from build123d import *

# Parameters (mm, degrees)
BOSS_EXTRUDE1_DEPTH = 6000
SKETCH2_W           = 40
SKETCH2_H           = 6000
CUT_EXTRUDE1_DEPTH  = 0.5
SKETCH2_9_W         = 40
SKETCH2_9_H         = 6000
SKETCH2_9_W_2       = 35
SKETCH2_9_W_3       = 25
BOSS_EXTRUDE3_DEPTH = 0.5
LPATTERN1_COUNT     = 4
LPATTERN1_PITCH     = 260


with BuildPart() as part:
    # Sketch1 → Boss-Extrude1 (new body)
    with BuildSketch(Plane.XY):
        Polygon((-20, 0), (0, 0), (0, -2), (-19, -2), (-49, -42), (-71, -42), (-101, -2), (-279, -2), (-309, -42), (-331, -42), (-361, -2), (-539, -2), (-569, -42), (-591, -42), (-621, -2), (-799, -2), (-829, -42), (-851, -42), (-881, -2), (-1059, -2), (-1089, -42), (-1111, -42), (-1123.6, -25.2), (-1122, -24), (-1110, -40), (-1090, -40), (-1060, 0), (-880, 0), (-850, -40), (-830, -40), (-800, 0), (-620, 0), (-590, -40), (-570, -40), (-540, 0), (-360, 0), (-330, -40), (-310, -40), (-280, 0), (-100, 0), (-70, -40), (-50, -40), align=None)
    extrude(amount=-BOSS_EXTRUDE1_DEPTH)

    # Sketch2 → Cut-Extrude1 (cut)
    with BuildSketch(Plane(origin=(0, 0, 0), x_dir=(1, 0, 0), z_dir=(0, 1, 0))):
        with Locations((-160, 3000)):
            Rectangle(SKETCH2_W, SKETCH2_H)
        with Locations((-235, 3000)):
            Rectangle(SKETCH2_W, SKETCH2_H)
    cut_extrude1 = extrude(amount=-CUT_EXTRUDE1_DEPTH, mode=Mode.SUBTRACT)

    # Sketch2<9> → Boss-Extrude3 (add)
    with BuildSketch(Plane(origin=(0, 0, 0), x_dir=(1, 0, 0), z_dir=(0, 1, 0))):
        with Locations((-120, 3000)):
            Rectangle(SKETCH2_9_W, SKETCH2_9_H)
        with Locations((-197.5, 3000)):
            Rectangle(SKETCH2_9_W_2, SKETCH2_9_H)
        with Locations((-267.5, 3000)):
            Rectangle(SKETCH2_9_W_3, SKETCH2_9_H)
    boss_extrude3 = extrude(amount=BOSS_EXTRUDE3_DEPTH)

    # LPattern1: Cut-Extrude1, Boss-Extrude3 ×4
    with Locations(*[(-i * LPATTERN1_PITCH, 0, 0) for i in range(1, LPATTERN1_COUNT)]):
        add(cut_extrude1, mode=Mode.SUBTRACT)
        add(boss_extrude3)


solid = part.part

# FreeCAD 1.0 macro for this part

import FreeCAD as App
import Part
import Sketcher
from FreeCAD import Vector
Q = App.Units.Quantity

doc = App.newDocument("Part")
body = doc.addObject("PartDesign::Body", "Body")

# Sketch on XY plane
sketch1 = body.newObject("Sketcher::SketchObject", "Sketch")
sketch1.AttachmentSupport = (doc.getObject("XY_Plane"), [""])
sketch1.MapMode = "FlatFace"
sketch1.addGeometry(Part.LineSegment(Vector(0, 0, 0), Vector(-20, 0, 0)), False)
sketch1.addGeometry(Part.LineSegment(Vector(-20, 0, 0), Vector(-50, -40, 0)), False)
sketch1.addGeometry(Part.LineSegment(Vector(-50, -40, 0), Vector(-70, -40, 0)), False)
sketch1.addGeometry(Part.LineSegment(Vector(-70, -40, 0), Vector(-100, 0, 0)), False)
sketch1.addGeometry(Part.LineSegment(Vector(-100, 0, 0), Vector(-280, 0, 0)), False)
sketch1.addGeometry(Part.LineSegment(Vector(-280, 0, 0), Vector(-310, -40, 0)), False)
sketch1.addGeometry(Part.LineSegment(Vector(-310, -40, 0), Vector(-330, -40, 0)), False)
sketch1.addGeometry(Part.LineSegment(Vector(-330, -40, 0), Vector(-360, 0, 0)), False)
sketch1.addGeometry(Part.LineSegment(Vector(-360, 0, 0), Vector(-540, 0, 0)), False)
sketch1.addGeometry(Part.LineSegment(Vector(-540, 0, 0), Vector(-570, -40, 0)), False)
sketch1.addGeometry(Part.LineSegment(Vector(-570, -40, 0), Vector(-590, -40, 0)), False)
sketch1.addGeometry(Part.LineSegment(Vector(-590, -40, 0), Vector(-620, 0, 0)), False)
sketch1.addGeometry(Part.LineSegment(Vector(-620, 0, 0), Vector(-800, 0, 0)), False)
sketch1.addGeometry(Part.LineSegment(Vector(-800, 0, 0), Vector(-830, -40, 0)), False)
sketch1.addGeometry(Part.LineSegment(Vector(-830, -40, 0), Vector(-850, -40, 0)), False)
sketch1.addGeometry(Part.LineSegment(Vector(-850, -40, 0), Vector(-880, 0, 0)), False)
sketch1.addGeometry(Part.LineSegment(Vector(-880, 0, 0), Vector(-1060, 0, 0)), False)
sketch1.addGeometry(Part.LineSegment(Vector(-1060, 0, 0), Vector(-1090, -40, 0)), False)
sketch1.addGeometry(Part.LineSegment(Vector(-1090, -40, 0), Vector(-1110, -40, 0)), False)
sketch1.addGeometry(Part.LineSegment(Vector(-1110, -40, 0), Vector(-1122, -24, 0)), False)
sketch1.addGeometry(Part.LineSegment(Vector(-1122, -24, 0), Vector(-1123.6, -25.2, 0)), False)
sketch1.addGeometry(Part.LineSegment(Vector(-1123.6, -25.2, 0), Vector(-1111, -42, 0)), False)
sketch1.addGeometry(Part.LineSegment(Vector(-1111, -42, 0), Vector(-1089, -42, 0)), False)
sketch1.addGeometry(Part.LineSegment(Vector(-1089, -42, 0), Vector(-1059, -2, 0)), False)
sketch1.addGeometry(Part.LineSegment(Vector(-1059, -2, 0), Vector(-881, -2, 0)), False)
sketch1.addGeometry(Part.LineSegment(Vector(-881, -2, 0), Vector(-851, -42, 0)), False)
sketch1.addGeometry(Part.LineSegment(Vector(-851, -42, 0), Vector(-829, -42, 0)), False)
sketch1.addGeometry(Part.LineSegment(Vector(-829, -42, 0), Vector(-799, -2, 0)), False)
sketch1.addGeometry(Part.LineSegment(Vector(-799, -2, 0), Vector(-621, -2, 0)), False)
sketch1.addGeometry(Part.LineSegment(Vector(-621, -2, 0), Vector(-591, -42, 0)), False)
sketch1.addGeometry(Part.LineSegment(Vector(-591, -42, 0), Vector(-569, -42, 0)), False)
sketch1.addGeometry(Part.LineSegment(Vector(-569, -42, 0), Vector(-539, -2, 0)), False)
sketch1.addGeometry(Part.LineSegment(Vector(-539, -2, 0), Vector(-361, -2, 0)), False)
sketch1.addGeometry(Part.LineSegment(Vector(-361, -2, 0), Vector(-331, -42, 0)), False)
sketch1.addGeometry(Part.LineSegment(Vector(-331, -42, 0), Vector(-309, -42, 0)), False)
sketch1.addGeometry(Part.LineSegment(Vector(-309, -42, 0), Vector(-279, -2, 0)), False)
sketch1.addGeometry(Part.LineSegment(Vector(-279, -2, 0), Vector(-101, -2, 0)), False)
sketch1.addGeometry(Part.LineSegment(Vector(-101, -2, 0), Vector(-71, -42, 0)), False)
sketch1.addGeometry(Part.LineSegment(Vector(-71, -42, 0), Vector(-49, -42, 0)), False)
sketch1.addGeometry(Part.LineSegment(Vector(-49, -42, 0), Vector(-19, -2, 0)), False)
sketch1.addGeometry(Part.LineSegment(Vector(-19, -2, 0), Vector(0, -2, 0)), False)
sketch1.addGeometry(Part.LineSegment(Vector(0, -2, 0), Vector(0, 0, 0)), False)
sketch1.addConstraint(Sketcher.Constraint("Coincident", 0, 2, 1, 1))
sketch1.addConstraint(Sketcher.Constraint("Coincident", 1, 2, 2, 1))
sketch1.addConstraint(Sketcher.Constraint("Coincident", 2, 2, 3, 1))
sketch1.addConstraint(Sketcher.Constraint("Coincident", 3, 2, 4, 1))
sketch1.addConstraint(Sketcher.Constraint("Coincident", 4, 2, 5, 1))
sketch1.addConstraint(Sketcher.Constraint("Coincident", 5, 2, 6, 1))
sketch1.addConstraint(Sketcher.Constraint("Coincident", 6, 2, 7, 1))
sketch1.addConstraint(Sketcher.Constraint("Coincident", 7, 2, 8, 1))
sketch1.addConstraint(Sketcher.Constraint("Coincident", 8, 2, 9, 1))
sketch1.addConstraint(Sketcher.Constraint("Coincident", 9, 2, 10, 1))
sketch1.addConstraint(Sketcher.Constraint("Coincident", 10, 2, 11, 1))
sketch1.addConstraint(Sketcher.Constraint("Coincident", 11, 2, 12, 1))
sketch1.addConstraint(Sketcher.Constraint("Coincident", 12, 2, 13, 1))
sketch1.addConstraint(Sketcher.Constraint("Coincident", 13, 2, 14, 1))
sketch1.addConstraint(Sketcher.Constraint("Coincident", 14, 2, 15, 1))
sketch1.addConstraint(Sketcher.Constraint("Coincident", 15, 2, 16, 1))
sketch1.addConstraint(Sketcher.Constraint("Coincident", 16, 2, 17, 1))
sketch1.addConstraint(Sketcher.Constraint("Coincident", 17, 2, 18, 1))
sketch1.addConstraint(Sketcher.Constraint("Coincident", 18, 2, 19, 1))
sketch1.addConstraint(Sketcher.Constraint("Coincident", 19, 2, 20, 1))
sketch1.addConstraint(Sketcher.Constraint("Coincident", 20, 2, 21, 1))
sketch1.addConstraint(Sketcher.Constraint("Coincident", 21, 2, 22, 1))
sketch1.addConstraint(Sketcher.Constraint("Coincident", 22, 2, 23, 1))
sketch1.addConstraint(Sketcher.Constraint("Coincident", 23, 2, 24, 1))
sketch1.addConstraint(Sketcher.Constraint("Coincident", 24, 2, 25, 1))
sketch1.addConstraint(Sketcher.Constraint("Coincident", 25, 2, 26, 1))
sketch1.addConstraint(Sketcher.Constraint("Coincident", 26, 2, 27, 1))
sketch1.addConstraint(Sketcher.Constraint("Coincident", 27, 2, 28, 1))
sketch1.addConstraint(Sketcher.Constraint("Coincident", 28, 2, 29, 1))
sketch1.addConstraint(Sketcher.Constraint("Coincident", 29, 2, 30, 1))
sketch1.addConstraint(Sketcher.Constraint("Coincident", 30, 2, 31, 1))
sketch1.addConstraint(Sketcher.Constraint("Coincident", 31, 2, 32, 1))
sketch1.addConstraint(Sketcher.Constraint("Coincident", 32, 2, 33, 1))
sketch1.addConstraint(Sketcher.Constraint("Coincident", 33, 2, 34, 1))
sketch1.addConstraint(Sketcher.Constraint("Coincident", 34, 2, 35, 1))
sketch1.addConstraint(Sketcher.Constraint("Coincident", 35, 2, 36, 1))
sketch1.addConstraint(Sketcher.Constraint("Coincident", 36, 2, 37, 1))
sketch1.addConstraint(Sketcher.Constraint("Coincident", 37, 2, 38, 1))
sketch1.addConstraint(Sketcher.Constraint("Coincident", 38, 2, 39, 1))
sketch1.addConstraint(Sketcher.Constraint("Coincident", 39, 2, 40, 1))
sketch1.addConstraint(Sketcher.Constraint("Coincident", 40, 2, 41, 1))
sketch1.addConstraint(Sketcher.Constraint("Coincident", 41, 2, 0, 1))
sketch1.addConstraint(Sketcher.Constraint("Horizontal", 0))
sketch1.addConstraint(Sketcher.Constraint("Horizontal", 2))
sketch1.addConstraint(Sketcher.Constraint("Horizontal", 4))
sketch1.addConstraint(Sketcher.Constraint("Horizontal", 6))
sketch1.addConstraint(Sketcher.Constraint("Horizontal", 8))
sketch1.addConstraint(Sketcher.Constraint("Horizontal", 10))
sketch1.addConstraint(Sketcher.Constraint("Horizontal", 12))
sketch1.addConstraint(Sketcher.Constraint("Horizontal", 14))
sketch1.addConstraint(Sketcher.Constraint("Horizontal", 16))
sketch1.addConstraint(Sketcher.Constraint("Horizontal", 18))
sketch1.addConstraint(Sketcher.Constraint("Horizontal", 22))
sketch1.addConstraint(Sketcher.Constraint("Horizontal", 24))
sketch1.addConstraint(Sketcher.Constraint("Horizontal", 26))
sketch1.addConstraint(Sketcher.Constraint("Horizontal", 28))
sketch1.addConstraint(Sketcher.Constraint("Horizontal", 30))
sketch1.addConstraint(Sketcher.Constraint("Horizontal", 32))
sketch1.addConstraint(Sketcher.Constraint("Horizontal", 34))
sketch1.addConstraint(Sketcher.Constraint("Horizontal", 36))
sketch1.addConstraint(Sketcher.Constraint("Horizontal", 38))
sketch1.addConstraint(Sketcher.Constraint("Horizontal", 40))
sketch1.addConstraint(Sketcher.Constraint("Vertical", 41))
sketch1.addConstraint(Sketcher.Constraint("Coincident", 41, 2, -1, 1))
sketch1.addConstraint(Sketcher.Constraint("PointOnObject", 3, 2, -1))
sketch1.addConstraint(Sketcher.Constraint("PointOnObject", 7, 2, -1))
sketch1.addConstraint(Sketcher.Constraint("PointOnObject", 11, 2, -1))
sketch1.addConstraint(Sketcher.Constraint("PointOnObject", 15, 2, -1))
sketch1.addConstraint(Sketcher.Constraint("Parallel", 1, 5))
sketch1.addConstraint(Sketcher.Constraint("Parallel", 3, 7))
sketch1.addConstraint(Sketcher.Constraint("Parallel", 5, 9))
sketch1.addConstraint(Sketcher.Constraint("Parallel", 7, 11))
sketch1.addConstraint(Sketcher.Constraint("Parallel", 9, 13))
sketch1.addConstraint(Sketcher.Constraint("Parallel", 11, 15))
sketch1.addConstraint(Sketcher.Constraint("Parallel", 13, 17))
sketch1.addConstraint(Sketcher.Constraint("Parallel", 15, 19))
sketch1.addConstraint(Sketcher.Constraint("Perpendicular", 19, 20))
sketch1.addConstraint(Sketcher.Constraint("Perpendicular", 20, 21))
sketch1.addConstraint(Sketcher.Constraint("Parallel", 17, 23))
sketch1.addConstraint(Sketcher.Constraint("Parallel", 21, 25))
sketch1.addConstraint(Sketcher.Constraint("Parallel", 23, 27))
sketch1.addConstraint(Sketcher.Constraint("Parallel", 25, 29))
sketch1.addConstraint(Sketcher.Constraint("Parallel", 27, 31))
sketch1.addConstraint(Sketcher.Constraint("Parallel", 29, 33))
sketch1.addConstraint(Sketcher.Constraint("Parallel", 31, 35))
sketch1.addConstraint(Sketcher.Constraint("Parallel", 33, 37))
sketch1.addConstraint(Sketcher.Constraint("Parallel", 35, 39))
sketch1.addConstraint(Sketcher.Constraint("Horizontal", 2, 2, 5, 2))
sketch1.addConstraint(Sketcher.Constraint("Horizontal", 6, 2, 9, 2))
sketch1.addConstraint(Sketcher.Constraint("Horizontal", 10, 2, 13, 2))
sketch1.addConstraint(Sketcher.Constraint("Horizontal", 14, 2, 17, 2))
sketch1.addConstraint(Sketcher.Constraint("Horizontal", 22, 2, 25, 2))
sketch1.addConstraint(Sketcher.Constraint("Horizontal", 24, 2, 27, 2))
sketch1.addConstraint(Sketcher.Constraint("Horizontal", 26, 2, 29, 2))
sketch1.addConstraint(Sketcher.Constraint("Horizontal", 28, 2, 31, 2))
sketch1.addConstraint(Sketcher.Constraint("Horizontal", 30, 2, 33, 2))
sketch1.addConstraint(Sketcher.Constraint("Horizontal", 32, 2, 35, 2))
sketch1.addConstraint(Sketcher.Constraint("Horizontal", 34, 2, 37, 2))
sketch1.addConstraint(Sketcher.Constraint("Horizontal", 36, 2, 39, 2))
sketch1.addConstraint(Sketcher.Constraint("Equal", 0, 2))
sketch1.addConstraint(Sketcher.Constraint("Equal", 2, 6))
sketch1.addConstraint(Sketcher.Constraint("Equal", 4, 8))
sketch1.addConstraint(Sketcher.Constraint("Equal", 6, 10))
sketch1.addConstraint(Sketcher.Constraint("Equal", 8, 12))
sketch1.addConstraint(Sketcher.Constraint("Equal", 10, 14))
sketch1.addConstraint(Sketcher.Constraint("Equal", 12, 16))
sketch1.addConstraint(Sketcher.Constraint("Equal", 14, 18))
sketch1.addConstraint(Sketcher.Constraint("Equal", 22, 26))
sketch1.addConstraint(Sketcher.Constraint("Equal", 24, 28))
sketch1.addConstraint(Sketcher.Constraint("Equal", 26, 30))
sketch1.addConstraint(Sketcher.Constraint("Equal", 28, 32))
sketch1.addConstraint(Sketcher.Constraint("Equal", 30, 34))
sketch1.addConstraint(Sketcher.Constraint("Equal", 32, 36))
sketch1.addConstraint(Sketcher.Constraint("Equal", 34, 38))
sketch1.addConstraint(Sketcher.Constraint("Equal", 1, 3))
sketch1.addConstraint(Sketcher.Constraint("Equal", 17, 23))
sketch1.addConstraint(Sketcher.Constraint("DistanceX", 0, 2, 0, 1, Q("20 mm")))
sketch1.addConstraint(Sketcher.Constraint("DistanceX", 4, 2, 4, 1, Q("180 mm")))
sketch1.addConstraint(Sketcher.Constraint("DistanceX", 22, 1, 22, 2, Q("22 mm")))
sketch1.addConstraint(Sketcher.Constraint("DistanceX", 24, 1, 24, 2, Q("178 mm")))
sketch1.addConstraint(Sketcher.Constraint("DistanceX", 40, 1, 40, 2, Q("19 mm")))
sketch1.addConstraint(Sketcher.Constraint("DistanceY", 41, 1, 41, 2, Q("2 mm")))
sketch1.addConstraint(Sketcher.Constraint("Distance", 1, Q("50 mm")))
sketch1.addConstraint(Sketcher.Constraint("Distance", 19, Q("20 mm")))
sketch1.addConstraint(Sketcher.Constraint("DistanceX", 1, 2, -1, 1, Q("50 mm")))
pad1 = body.newObject("PartDesign::Pad", "Pad")
pad1.Profile = sketch1
pad1.Length = 6000
pad1.Reversed = True

# Sketch on XZ plane
sketch2 = body.newObject("Sketcher::SketchObject", "Sketch001")
sketch2.AttachmentSupport = (doc.getObject("XZ_Plane"), [""])
sketch2.MapMode = "FlatFace"
sketch2.addGeometry(Part.LineSegment(Vector(-180, -6000, 0), Vector(-180, 0, 0)), False)
sketch2.addGeometry(Part.LineSegment(Vector(-180, 0, 0), Vector(-140, 0, 0)), False)
sketch2.addGeometry(Part.LineSegment(Vector(-140, 0, 0), Vector(-140, -6000, 0)), False)
sketch2.addGeometry(Part.LineSegment(Vector(-140, -6000, 0), Vector(-180, -6000, 0)), False)
sketch2.addGeometry(Part.LineSegment(Vector(-255, -6000, 0), Vector(-255, 0, 0)), False)
sketch2.addGeometry(Part.LineSegment(Vector(-255, 0, 0), Vector(-215, 0, 0)), False)
sketch2.addGeometry(Part.LineSegment(Vector(-215, 0, 0), Vector(-215, -6000, 0)), False)
sketch2.addGeometry(Part.LineSegment(Vector(-215, -6000, 0), Vector(-255, -6000, 0)), False)
sketch2.addConstraint(Sketcher.Constraint("Coincident", 0, 2, 1, 1))
sketch2.addConstraint(Sketcher.Constraint("Coincident", 1, 2, 2, 1))
sketch2.addConstraint(Sketcher.Constraint("Coincident", 2, 2, 3, 1))
sketch2.addConstraint(Sketcher.Constraint("Coincident", 3, 2, 0, 1))
sketch2.addConstraint(Sketcher.Constraint("Coincident", 4, 2, 5, 1))
sketch2.addConstraint(Sketcher.Constraint("Coincident", 5, 2, 6, 1))
sketch2.addConstraint(Sketcher.Constraint("Coincident", 6, 2, 7, 1))
sketch2.addConstraint(Sketcher.Constraint("Coincident", 7, 2, 4, 1))
sketch2.addConstraint(Sketcher.Constraint("Vertical", 0))
sketch2.addConstraint(Sketcher.Constraint("Horizontal", 1))
sketch2.addConstraint(Sketcher.Constraint("Vertical", 2))
sketch2.addConstraint(Sketcher.Constraint("Horizontal", 3))
sketch2.addConstraint(Sketcher.Constraint("Vertical", 4))
sketch2.addConstraint(Sketcher.Constraint("Horizontal", 5))
sketch2.addConstraint(Sketcher.Constraint("Vertical", 6))
sketch2.addConstraint(Sketcher.Constraint("Horizontal", 7))
sketch2.addConstraint(Sketcher.Constraint("PointOnObject", 0, 2, -1))
sketch2.addConstraint(Sketcher.Constraint("PointOnObject", 4, 2, -1))
sketch2.addConstraint(Sketcher.Constraint("Horizontal", 3, 2, 6, 2))
sketch2.addConstraint(Sketcher.Constraint("Equal", 3, 5))
sketch2.addConstraint(Sketcher.Constraint("DistanceX", 1, 1, 1, 2, Q("40 mm")))
sketch2.addConstraint(Sketcher.Constraint("DistanceY", 0, 1, 0, 2, Q("6000 mm")))
sketch2.addConstraint(Sketcher.Constraint("DistanceX", 0, 2, -1, 1, Q("180 mm")))
sketch2.addConstraint(Sketcher.Constraint("DistanceX", 4, 2, -1, 1, Q("255 mm")))
pocket1 = body.newObject("PartDesign::Pocket", "Pocket")
pocket1.Profile = sketch2
pocket1.Length = 0.5
pocket1.Reversed = True

# Sketch on XZ plane
sketch3 = body.newObject("Sketcher::SketchObject", "Sketch002")
sketch3.AttachmentSupport = (doc.getObject("XZ_Plane"), [""])
sketch3.MapMode = "FlatFace"
sketch3.addGeometry(Part.LineSegment(Vector(-140, -6000, 0), Vector(-140, 0, 0)), False)
sketch3.addGeometry(Part.LineSegment(Vector(-140, 0, 0), Vector(-100, 0, 0)), False)
sketch3.addGeometry(Part.LineSegment(Vector(-100, 0, 0), Vector(-100, -6000, 0)), False)
sketch3.addGeometry(Part.LineSegment(Vector(-100, -6000, 0), Vector(-140, -6000, 0)), False)
sketch3.addGeometry(Part.LineSegment(Vector(-215, -6000, 0), Vector(-215, 0, 0)), False)
sketch3.addGeometry(Part.LineSegment(Vector(-215, 0, 0), Vector(-180, 0, 0)), False)
sketch3.addGeometry(Part.LineSegment(Vector(-180, 0, 0), Vector(-180, -6000, 0)), False)
sketch3.addGeometry(Part.LineSegment(Vector(-180, -6000, 0), Vector(-215, -6000, 0)), False)
sketch3.addGeometry(Part.LineSegment(Vector(-280, -6000, 0), Vector(-280, 0, 0)), False)
sketch3.addGeometry(Part.LineSegment(Vector(-280, 0, 0), Vector(-255, 0, 0)), False)
sketch3.addGeometry(Part.LineSegment(Vector(-255, 0, 0), Vector(-255, -6000, 0)), False)
sketch3.addGeometry(Part.LineSegment(Vector(-255, -6000, 0), Vector(-280, -6000, 0)), False)
sketch3.addConstraint(Sketcher.Constraint("Coincident", 0, 2, 1, 1))
sketch3.addConstraint(Sketcher.Constraint("Coincident", 1, 2, 2, 1))
sketch3.addConstraint(Sketcher.Constraint("Coincident", 2, 2, 3, 1))
sketch3.addConstraint(Sketcher.Constraint("Coincident", 3, 2, 0, 1))
sketch3.addConstraint(Sketcher.Constraint("Coincident", 4, 2, 5, 1))
sketch3.addConstraint(Sketcher.Constraint("Coincident", 5, 2, 6, 1))
sketch3.addConstraint(Sketcher.Constraint("Coincident", 6, 2, 7, 1))
sketch3.addConstraint(Sketcher.Constraint("Coincident", 7, 2, 4, 1))
sketch3.addConstraint(Sketcher.Constraint("Coincident", 8, 2, 9, 1))
sketch3.addConstraint(Sketcher.Constraint("Coincident", 9, 2, 10, 1))
sketch3.addConstraint(Sketcher.Constraint("Coincident", 10, 2, 11, 1))
sketch3.addConstraint(Sketcher.Constraint("Coincident", 11, 2, 8, 1))
sketch3.addConstraint(Sketcher.Constraint("Vertical", 0))
sketch3.addConstraint(Sketcher.Constraint("Horizontal", 1))
sketch3.addConstraint(Sketcher.Constraint("Vertical", 2))
sketch3.addConstraint(Sketcher.Constraint("Horizontal", 3))
sketch3.addConstraint(Sketcher.Constraint("Vertical", 4))
sketch3.addConstraint(Sketcher.Constraint("Horizontal", 5))
sketch3.addConstraint(Sketcher.Constraint("Vertical", 6))
sketch3.addConstraint(Sketcher.Constraint("Horizontal", 7))
sketch3.addConstraint(Sketcher.Constraint("Vertical", 8))
sketch3.addConstraint(Sketcher.Constraint("Horizontal", 9))
sketch3.addConstraint(Sketcher.Constraint("Vertical", 10))
sketch3.addConstraint(Sketcher.Constraint("Horizontal", 11))
sketch3.addConstraint(Sketcher.Constraint("PointOnObject", 0, 2, -1))
sketch3.addConstraint(Sketcher.Constraint("PointOnObject", 4, 2, -1))
sketch3.addConstraint(Sketcher.Constraint("PointOnObject", 8, 2, -1))
sketch3.addConstraint(Sketcher.Constraint("Horizontal", 3, 2, 6, 2))
sketch3.addConstraint(Sketcher.Constraint("Horizontal", 7, 2, 10, 2))
sketch3.addConstraint(Sketcher.Constraint("DistanceX", 1, 1, 1, 2, Q("40 mm")))
sketch3.addConstraint(Sketcher.Constraint("DistanceX", 5, 1, 5, 2, Q("35 mm")))
sketch3.addConstraint(Sketcher.Constraint("DistanceX", 9, 1, 9, 2, Q("25 mm")))
sketch3.addConstraint(Sketcher.Constraint("DistanceY", 0, 1, 0, 2, Q("6000 mm")))
sketch3.addConstraint(Sketcher.Constraint("DistanceX", 0, 2, -1, 1, Q("140 mm")))
sketch3.addConstraint(Sketcher.Constraint("DistanceX", 4, 2, -1, 1, Q("215 mm")))
sketch3.addConstraint(Sketcher.Constraint("DistanceX", 8, 2, -1, 1, Q("280 mm")))
pad2 = body.newObject("PartDesign::Pad", "Pad001")
pad2.Profile = sketch3
pad2.Length = 0.5
pad2.Reversed = True
doc.recompute()

linearpattern = body.newObject("PartDesign::LinearPattern", "LinearPattern")
linearpattern.Originals = [pocket1, pad2]
linearpattern.Direction = (doc.getObject("X_Axis"), [""])
linearpattern.Mode = "offset"
linearpattern.Offset = 260
linearpattern.Occurrences = 4
linearpattern.Reversed = True
body.Tip = linearpattern

doc.recompute()
